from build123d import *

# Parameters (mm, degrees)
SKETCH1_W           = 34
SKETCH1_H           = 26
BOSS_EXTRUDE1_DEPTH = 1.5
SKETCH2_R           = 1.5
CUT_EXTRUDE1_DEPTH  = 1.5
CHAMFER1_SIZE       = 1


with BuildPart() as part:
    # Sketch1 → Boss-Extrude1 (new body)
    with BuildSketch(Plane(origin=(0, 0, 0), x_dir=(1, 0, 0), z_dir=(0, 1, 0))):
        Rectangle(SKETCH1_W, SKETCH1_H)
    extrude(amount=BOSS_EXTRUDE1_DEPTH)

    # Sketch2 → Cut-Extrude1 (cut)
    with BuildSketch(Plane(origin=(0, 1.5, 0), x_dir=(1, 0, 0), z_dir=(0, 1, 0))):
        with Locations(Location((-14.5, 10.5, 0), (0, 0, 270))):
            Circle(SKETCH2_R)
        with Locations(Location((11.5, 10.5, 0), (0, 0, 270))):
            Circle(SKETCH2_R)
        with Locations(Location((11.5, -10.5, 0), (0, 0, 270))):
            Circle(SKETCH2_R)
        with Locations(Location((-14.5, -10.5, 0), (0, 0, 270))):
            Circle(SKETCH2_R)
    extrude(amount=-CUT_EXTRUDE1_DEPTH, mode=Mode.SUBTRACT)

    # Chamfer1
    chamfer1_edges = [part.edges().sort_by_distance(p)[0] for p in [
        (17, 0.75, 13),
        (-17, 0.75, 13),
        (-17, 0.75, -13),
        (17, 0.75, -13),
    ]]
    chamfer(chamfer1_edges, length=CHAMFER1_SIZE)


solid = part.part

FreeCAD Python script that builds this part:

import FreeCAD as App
import Part
import Sketcher
Q = App.Units.Quantity


def edges_at(feature, points):
    """Names of the edges that pass closest to the given points."""
    edges = feature.Shape.Edges
    near = lambda p: min(range(len(edges)), key=lambda i: edges[i].distToShape(Part.Vertex(*p))[0])
    return sorted({f"Edge{near(p) + 1}" for p in points})

doc = App.newDocument("Part")
params = doc.addObject("Spreadsheet::Sheet", "Params")
for row, (alias, value) in enumerate([
    ("sketch1_width", "34 mm"),
    ("sketch1_height", "26 mm"),
    ("pad1_length", "1.5 mm"),
    ("sketch2_diameter", "3 mm"),
    ("pocket1_length", "1.5 mm"),
    ("chamfer_size", "1 mm"),
], start=1):
    params.set(f"A{row}", alias)
    params.set(f"B{row}", "=" + value)
    params.setAlias(f"B{row}", alias)

body = doc.addObject("PartDesign::Body", "Body")

sketch1 = body.newObject("Sketcher::SketchObject", "Sketch")
sketch1.AttachmentSupport = (doc.getObject("XZ_Plane"), [""])
sketch1.MapMode = "FlatFace"
sketch1.addGeometry(Part.LineSegment(App.Vector(-17, -13, 0), App.Vector(-17, 13, 0)), False)
sketch1.addGeometry(Part.LineSegment(App.Vector(-17, 13, 0), App.Vector(17, 13, 0)), False)
sketch1.addGeometry(Part.LineSegment(App.Vector(17, 13, 0), App.Vector(17, -13, 0)), False)
sketch1.addGeometry(Part.LineSegment(App.Vector(17, -13, 0), App.Vector(-17, -13, 0)), False)
sketch1.addConstraint(Sketcher.Constraint("Coincident", 0, 2, 1, 1))
sketch1.addConstraint(Sketcher.Constraint("Coincident", 1, 2, 2, 1))
sketch1.addConstraint(Sketcher.Constraint("Coincident", 2, 2, 3, 1))
sketch1.addConstraint(Sketcher.Constraint("Coincident", 3, 2, 0, 1))
sketch1.addConstraint(Sketcher.Constraint("Vertical", 0))
sketch1.addConstraint(Sketcher.Constraint("Horizontal", 1))
sketch1.addConstraint(Sketcher.Constraint("Vertical", 2))
sketch1.addConstraint(Sketcher.Constraint("Horizontal", 3))
sketch1.addConstraint(Sketcher.Constraint("Symmetric", 0, 2, 2, 2, -1, 1))
sketch1.addConstraint(Sketcher.Constraint("DistanceX", 1, 1, 1, 2, Q("34 mm")))
sketch1.addConstraint(Sketcher.Constraint("DistanceY", 0, 1, 0, 2, Q("26 mm")))
sketch1.setExpression("Constraints[9]", "Params.sketch1_width")
sketch1.setExpression("Constraints[10]", "Params.sketch1_height")
pad1 = body.newObject("PartDesign::Pad", "Pad")
pad1.Profile = sketch1
pad1.setExpression("Length", "Params.pad1_length")
pad1.Reversed = True

sketch2 = body.newObject("Sketcher::SketchObject", "Sketch001")
sketch2.AttachmentSupport = (doc.getObject("XZ_Plane"), [""])
sketch2.MapMode = "FlatFace"
sketch2.AttachmentOffset = App.Placement(App.Vector(0, 0, -1.5), App.Rotation())
sketch2.addGeometry(Part.Circle(App.Vector(-14.5, -10.5, 0), App.Vector(0, 0, 1), 1.5), False)
sketch2.addGeometry(Part.Circle(App.Vector(11.5, -10.5, 0), App.Vector(0, 0, 1), 1.5), False)
sketch2.addGeometry(Part.Circle(App.Vector(11.5, 10.5, 0), App.Vector(0, 0, 1), 1.5), False)
sketch2.addGeometry(Part.Circle(App.Vector(-14.5, 10.5, 0), App.Vector(0, 0, 1), 1.5), False)
sketch2.addConstraint(Sketcher.Constraint("Equal", 0, 1))
sketch2.addConstraint(Sketcher.Constraint("Equal", 1, 2))
sketch2.addConstraint(Sketcher.Constraint("Equal", 2, 3))
sketch2.addConstraint(Sketcher.Constraint("Symmetric", 1, 3, 2, 3, -1))
sketch2.addConstraint(Sketcher.Constraint("Symmetric", 0, 3, 3, 3, -1))
sketch2.addConstraint(Sketcher.Constraint("Horizontal", 0, 3, 1, 3))
sketch2.addConstraint(Sketcher.Constraint("Diameter", 0, Q("3 mm")))
sketch2.addConstraint(Sketcher.Constraint("DistanceX", 0, 3, 1, 3, Q("26 mm")))
sketch2.addConstraint(Sketcher.Constraint("DistanceY", 1, 3, 2, 3, Q("21 mm")))
sketch2.addConstraint(Sketcher.Constraint("DistanceX", 0, 3, -1, 1, Q("14.5 mm")))
sketch2.setExpression("Constraints[6]", "Params.sketch2_diameter")
pocket1 = body.newObject("PartDesign::Pocket", "Pocket")
pocket1.Profile = sketch2
pocket1.setExpression("Length", "Params.pocket1_length")
pocket1.Reversed = True
doc.recompute()

chamfer = body.newObject("PartDesign::Chamfer", "Chamfer")
chamfer.Base = (pocket1, edges_at(pocket1, [
    (17, 0.75, 13),
    (-17, 0.75, 13),
    (-17, 0.75, -13),
    (17, 0.75, -13),
]))
chamfer.setExpression("Size", "Params.chamfer_size")

doc.recompute()
